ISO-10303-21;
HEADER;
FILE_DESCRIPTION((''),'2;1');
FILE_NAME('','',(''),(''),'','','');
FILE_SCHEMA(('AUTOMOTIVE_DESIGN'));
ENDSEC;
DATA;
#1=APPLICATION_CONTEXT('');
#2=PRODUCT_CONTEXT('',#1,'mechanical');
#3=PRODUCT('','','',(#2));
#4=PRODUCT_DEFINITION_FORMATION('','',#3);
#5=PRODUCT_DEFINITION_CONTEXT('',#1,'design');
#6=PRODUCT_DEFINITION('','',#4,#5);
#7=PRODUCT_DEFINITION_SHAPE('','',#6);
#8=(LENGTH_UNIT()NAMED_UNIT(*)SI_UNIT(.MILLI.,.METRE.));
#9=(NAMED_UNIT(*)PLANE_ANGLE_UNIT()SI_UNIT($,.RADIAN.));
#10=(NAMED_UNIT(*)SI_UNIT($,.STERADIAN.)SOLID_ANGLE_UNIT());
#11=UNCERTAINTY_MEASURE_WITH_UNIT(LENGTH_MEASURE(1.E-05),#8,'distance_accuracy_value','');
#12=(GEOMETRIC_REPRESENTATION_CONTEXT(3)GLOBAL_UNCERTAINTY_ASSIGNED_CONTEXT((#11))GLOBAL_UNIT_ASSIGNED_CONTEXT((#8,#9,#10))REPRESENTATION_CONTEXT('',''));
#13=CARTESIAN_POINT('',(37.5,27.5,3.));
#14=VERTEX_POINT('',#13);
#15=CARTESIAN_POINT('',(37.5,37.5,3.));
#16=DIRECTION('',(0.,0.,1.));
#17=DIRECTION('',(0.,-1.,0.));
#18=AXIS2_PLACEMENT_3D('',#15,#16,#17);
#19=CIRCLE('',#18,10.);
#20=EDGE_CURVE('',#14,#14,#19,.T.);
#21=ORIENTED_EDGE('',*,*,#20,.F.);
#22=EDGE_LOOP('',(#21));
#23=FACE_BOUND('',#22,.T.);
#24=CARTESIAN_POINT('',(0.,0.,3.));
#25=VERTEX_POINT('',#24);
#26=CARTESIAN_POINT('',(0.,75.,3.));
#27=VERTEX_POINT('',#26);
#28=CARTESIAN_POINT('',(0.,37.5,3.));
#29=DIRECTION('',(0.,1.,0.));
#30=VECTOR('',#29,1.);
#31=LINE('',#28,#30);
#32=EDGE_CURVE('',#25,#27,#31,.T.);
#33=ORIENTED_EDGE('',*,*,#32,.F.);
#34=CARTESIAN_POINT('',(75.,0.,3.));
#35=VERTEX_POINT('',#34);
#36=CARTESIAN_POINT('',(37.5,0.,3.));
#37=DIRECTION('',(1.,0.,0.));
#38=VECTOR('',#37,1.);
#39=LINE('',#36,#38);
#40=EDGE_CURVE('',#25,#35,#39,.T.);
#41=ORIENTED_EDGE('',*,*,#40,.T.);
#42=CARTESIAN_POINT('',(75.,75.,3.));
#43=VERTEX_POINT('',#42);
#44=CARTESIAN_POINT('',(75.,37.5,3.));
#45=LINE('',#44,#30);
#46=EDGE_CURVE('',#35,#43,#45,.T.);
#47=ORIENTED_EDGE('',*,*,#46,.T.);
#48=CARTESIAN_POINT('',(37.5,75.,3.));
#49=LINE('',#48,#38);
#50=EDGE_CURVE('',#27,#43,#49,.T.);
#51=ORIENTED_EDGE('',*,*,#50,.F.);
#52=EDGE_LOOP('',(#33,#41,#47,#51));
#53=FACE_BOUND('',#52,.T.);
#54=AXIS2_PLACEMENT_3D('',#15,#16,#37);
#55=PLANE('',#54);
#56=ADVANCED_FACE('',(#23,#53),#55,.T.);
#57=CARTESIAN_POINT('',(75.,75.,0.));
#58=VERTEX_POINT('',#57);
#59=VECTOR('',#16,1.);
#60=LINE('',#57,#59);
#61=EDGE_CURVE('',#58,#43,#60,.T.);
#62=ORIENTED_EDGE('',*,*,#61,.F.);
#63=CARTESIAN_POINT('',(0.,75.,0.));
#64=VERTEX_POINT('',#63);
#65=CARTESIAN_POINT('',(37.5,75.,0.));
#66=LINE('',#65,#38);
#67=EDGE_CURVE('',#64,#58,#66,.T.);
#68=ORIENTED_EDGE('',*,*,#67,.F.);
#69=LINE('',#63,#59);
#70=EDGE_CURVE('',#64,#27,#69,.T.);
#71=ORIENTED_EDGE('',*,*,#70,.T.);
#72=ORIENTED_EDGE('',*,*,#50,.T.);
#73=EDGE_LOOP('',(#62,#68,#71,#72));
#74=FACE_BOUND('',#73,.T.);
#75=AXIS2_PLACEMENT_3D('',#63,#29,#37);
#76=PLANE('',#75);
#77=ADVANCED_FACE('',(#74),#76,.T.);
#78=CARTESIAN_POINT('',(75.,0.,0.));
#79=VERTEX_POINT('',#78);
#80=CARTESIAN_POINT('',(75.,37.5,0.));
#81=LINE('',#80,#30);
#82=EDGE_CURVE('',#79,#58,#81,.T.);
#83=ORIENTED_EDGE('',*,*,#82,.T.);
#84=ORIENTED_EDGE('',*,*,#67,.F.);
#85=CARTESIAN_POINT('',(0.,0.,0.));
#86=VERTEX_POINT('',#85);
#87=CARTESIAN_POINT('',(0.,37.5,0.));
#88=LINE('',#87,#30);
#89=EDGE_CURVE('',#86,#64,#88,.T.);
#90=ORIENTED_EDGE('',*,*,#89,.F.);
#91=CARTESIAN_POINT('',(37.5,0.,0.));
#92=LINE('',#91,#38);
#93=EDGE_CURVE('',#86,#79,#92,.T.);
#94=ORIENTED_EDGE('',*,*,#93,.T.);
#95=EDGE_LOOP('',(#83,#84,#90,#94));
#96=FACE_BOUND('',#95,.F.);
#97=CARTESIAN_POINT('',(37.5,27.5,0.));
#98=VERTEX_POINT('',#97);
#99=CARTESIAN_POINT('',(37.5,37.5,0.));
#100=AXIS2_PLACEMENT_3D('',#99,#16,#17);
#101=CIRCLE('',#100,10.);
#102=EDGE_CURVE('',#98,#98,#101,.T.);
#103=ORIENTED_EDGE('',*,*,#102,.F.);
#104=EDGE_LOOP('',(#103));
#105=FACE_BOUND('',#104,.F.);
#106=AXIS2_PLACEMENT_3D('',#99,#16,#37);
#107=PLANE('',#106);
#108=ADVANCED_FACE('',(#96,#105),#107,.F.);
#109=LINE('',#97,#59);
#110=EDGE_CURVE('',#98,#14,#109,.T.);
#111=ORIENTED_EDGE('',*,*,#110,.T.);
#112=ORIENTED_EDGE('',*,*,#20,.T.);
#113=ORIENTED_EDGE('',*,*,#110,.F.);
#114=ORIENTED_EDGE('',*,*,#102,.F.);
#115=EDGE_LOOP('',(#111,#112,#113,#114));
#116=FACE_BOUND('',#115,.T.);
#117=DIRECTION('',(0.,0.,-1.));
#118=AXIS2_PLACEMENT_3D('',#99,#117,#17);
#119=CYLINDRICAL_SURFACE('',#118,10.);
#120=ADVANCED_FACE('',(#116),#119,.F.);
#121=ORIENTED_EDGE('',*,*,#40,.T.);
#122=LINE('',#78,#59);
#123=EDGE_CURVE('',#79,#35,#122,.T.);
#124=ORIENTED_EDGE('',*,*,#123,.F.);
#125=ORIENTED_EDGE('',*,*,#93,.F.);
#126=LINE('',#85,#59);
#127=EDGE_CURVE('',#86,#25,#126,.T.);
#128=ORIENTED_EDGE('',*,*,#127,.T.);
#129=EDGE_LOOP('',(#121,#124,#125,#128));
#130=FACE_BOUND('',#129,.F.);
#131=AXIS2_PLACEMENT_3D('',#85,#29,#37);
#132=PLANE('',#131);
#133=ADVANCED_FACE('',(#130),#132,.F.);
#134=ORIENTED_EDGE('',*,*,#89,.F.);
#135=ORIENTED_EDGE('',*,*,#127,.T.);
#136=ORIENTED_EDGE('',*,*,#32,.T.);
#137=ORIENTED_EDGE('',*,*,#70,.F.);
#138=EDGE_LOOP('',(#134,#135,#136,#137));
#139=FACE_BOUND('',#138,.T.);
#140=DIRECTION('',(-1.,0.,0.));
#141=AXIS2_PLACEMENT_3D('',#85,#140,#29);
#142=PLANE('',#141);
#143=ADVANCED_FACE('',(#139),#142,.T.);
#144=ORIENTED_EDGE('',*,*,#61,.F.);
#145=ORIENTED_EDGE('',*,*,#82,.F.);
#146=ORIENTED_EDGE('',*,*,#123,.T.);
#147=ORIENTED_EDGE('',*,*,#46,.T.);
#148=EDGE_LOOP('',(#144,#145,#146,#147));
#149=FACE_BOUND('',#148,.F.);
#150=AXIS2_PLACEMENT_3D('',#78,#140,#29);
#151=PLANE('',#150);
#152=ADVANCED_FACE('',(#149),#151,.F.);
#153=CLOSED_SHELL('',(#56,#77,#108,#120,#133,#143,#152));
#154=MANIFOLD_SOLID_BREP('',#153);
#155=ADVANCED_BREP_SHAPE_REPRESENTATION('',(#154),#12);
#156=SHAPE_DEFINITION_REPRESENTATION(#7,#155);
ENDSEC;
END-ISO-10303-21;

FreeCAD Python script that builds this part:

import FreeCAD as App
import Part
import Sketcher
from FreeCAD import Vector
Q = App.Units.Quantity


def add_polygon(sketch, points):
    """Adds a closed chain of lines whose ends are joined by coincident constraints."""
    first, n = sketch.GeometryCount, len(points)
    for a, b in zip(points, points[1:] + points[:1]):
        sketch.addGeometry(Part.LineSegment(App.Vector(*a, 0), App.Vector(*b, 0)), False)
    for i in range(n):
        sketch.addConstraint(Sketcher.Constraint("Coincident", first + i, 2, first + (i + 1) % n, 1))

doc = App.newDocument("Part")
body = doc.addObject("PartDesign::Body", "Body")

# Sketch on XY plane
sketch1 = body.newObject("Sketcher::SketchObject", "Sketch")
sketch1.AttachmentSupport = (doc.getObject("XY_Plane"), [""])
sketch1.MapMode = "FlatFace"
add_polygon(sketch1, [(0, 75), (0, 0), (75, 0), (75, 75)])  # lines 0-3
sketch1.addConstraint([
    Sketcher.Constraint("Vertical", 0),
    Sketcher.Constraint("Horizontal", 1),
    Sketcher.Constraint("Vertical", 2),
    Sketcher.Constraint("Horizontal", 3),
    Sketcher.Constraint("Coincident", 0, 2, -1, 1),
    Sketcher.Constraint("Equal", 3, 0),
    Sketcher.Constraint("DistanceX", 1, 1, 1, 2, Q("75 mm")),
])
pad1 = body.newObject("PartDesign::Pad", "Pad")
pad1.Profile = sketch1
pad1.Length = 3

# Sketch on XY plane
sketch2 = body.newObject("Sketcher::SketchObject", "Sketch001")
sketch2.AttachmentSupport = (doc.getObject("XY_Plane"), [""])
sketch2.MapMode = "FlatFace"
sketch2.addGeometry(Part.Circle(Vector(38, 38, 0), Vector(0, 0, 1), 10), False)
sketch2.addConstraint([
    Sketcher.Constraint("Diameter", 0, Q("20 mm")),
    Sketcher.Constraint("DistanceX", -1, 1, 0, 3, Q("37.5 mm")),
    Sketcher.Constraint("DistanceY", -1, 1, 0, 3, Q("37.5 mm")),
])
pocket1 = body.newObject("PartDesign::Pocket", "Pocket")
pocket1.Profile = sketch2
pocket1.Length = 3
pocket1.Reversed = True

doc.recompute()
